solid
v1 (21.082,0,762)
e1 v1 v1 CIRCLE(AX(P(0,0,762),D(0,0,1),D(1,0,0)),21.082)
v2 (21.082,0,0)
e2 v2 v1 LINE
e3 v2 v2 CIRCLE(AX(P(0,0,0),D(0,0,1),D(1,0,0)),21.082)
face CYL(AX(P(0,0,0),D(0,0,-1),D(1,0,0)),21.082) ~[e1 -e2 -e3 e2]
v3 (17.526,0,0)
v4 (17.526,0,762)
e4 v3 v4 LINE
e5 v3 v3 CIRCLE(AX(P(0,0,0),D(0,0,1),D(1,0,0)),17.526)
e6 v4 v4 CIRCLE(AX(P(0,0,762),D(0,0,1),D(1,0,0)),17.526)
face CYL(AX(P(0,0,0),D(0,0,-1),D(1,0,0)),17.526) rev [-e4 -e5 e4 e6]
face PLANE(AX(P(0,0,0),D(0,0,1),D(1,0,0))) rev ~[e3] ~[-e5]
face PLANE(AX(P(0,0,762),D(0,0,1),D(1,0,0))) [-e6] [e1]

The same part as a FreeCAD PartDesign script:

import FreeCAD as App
import Part
import Sketcher
from FreeCAD import Vector
Q = App.Units.Quantity

doc = App.newDocument("Part")
body = doc.addObject("PartDesign::Body", "Body")

# Sketch on XY plane
sketch1 = body.newObject("Sketcher::SketchObject", "Sketch")
sketch1.AttachmentSupport = (doc.getObject("XY_Plane"), [""])
sketch1.MapMode = "FlatFace"
sketch1.addGeometry(Part.Circle(Vector(0, 0, 0), Vector(0, 0, 1), 21), False)
sketch1.addGeometry(Part.Circle(Vector(0, 0, 0), Vector(0, 0, 1), 18), False)
sketch1.addConstraint(Sketcher.Constraint("Coincident", 0, 3, -1, 1))
sketch1.addConstraint(Sketcher.Constraint("Coincident", 1, 3, -1, 1))
sketch1.addConstraint(Sketcher.Constraint("Diameter", 0, Q("1.66 in")))
sketch1.addConstraint(Sketcher.Constraint("Diameter", 1, Q("1.38 in")))
pad1 = body.newObject("PartDesign::Pad", "Pad")
pad1.Profile = sketch1
pad1.Length = Q("30 in")

doc.recompute()
